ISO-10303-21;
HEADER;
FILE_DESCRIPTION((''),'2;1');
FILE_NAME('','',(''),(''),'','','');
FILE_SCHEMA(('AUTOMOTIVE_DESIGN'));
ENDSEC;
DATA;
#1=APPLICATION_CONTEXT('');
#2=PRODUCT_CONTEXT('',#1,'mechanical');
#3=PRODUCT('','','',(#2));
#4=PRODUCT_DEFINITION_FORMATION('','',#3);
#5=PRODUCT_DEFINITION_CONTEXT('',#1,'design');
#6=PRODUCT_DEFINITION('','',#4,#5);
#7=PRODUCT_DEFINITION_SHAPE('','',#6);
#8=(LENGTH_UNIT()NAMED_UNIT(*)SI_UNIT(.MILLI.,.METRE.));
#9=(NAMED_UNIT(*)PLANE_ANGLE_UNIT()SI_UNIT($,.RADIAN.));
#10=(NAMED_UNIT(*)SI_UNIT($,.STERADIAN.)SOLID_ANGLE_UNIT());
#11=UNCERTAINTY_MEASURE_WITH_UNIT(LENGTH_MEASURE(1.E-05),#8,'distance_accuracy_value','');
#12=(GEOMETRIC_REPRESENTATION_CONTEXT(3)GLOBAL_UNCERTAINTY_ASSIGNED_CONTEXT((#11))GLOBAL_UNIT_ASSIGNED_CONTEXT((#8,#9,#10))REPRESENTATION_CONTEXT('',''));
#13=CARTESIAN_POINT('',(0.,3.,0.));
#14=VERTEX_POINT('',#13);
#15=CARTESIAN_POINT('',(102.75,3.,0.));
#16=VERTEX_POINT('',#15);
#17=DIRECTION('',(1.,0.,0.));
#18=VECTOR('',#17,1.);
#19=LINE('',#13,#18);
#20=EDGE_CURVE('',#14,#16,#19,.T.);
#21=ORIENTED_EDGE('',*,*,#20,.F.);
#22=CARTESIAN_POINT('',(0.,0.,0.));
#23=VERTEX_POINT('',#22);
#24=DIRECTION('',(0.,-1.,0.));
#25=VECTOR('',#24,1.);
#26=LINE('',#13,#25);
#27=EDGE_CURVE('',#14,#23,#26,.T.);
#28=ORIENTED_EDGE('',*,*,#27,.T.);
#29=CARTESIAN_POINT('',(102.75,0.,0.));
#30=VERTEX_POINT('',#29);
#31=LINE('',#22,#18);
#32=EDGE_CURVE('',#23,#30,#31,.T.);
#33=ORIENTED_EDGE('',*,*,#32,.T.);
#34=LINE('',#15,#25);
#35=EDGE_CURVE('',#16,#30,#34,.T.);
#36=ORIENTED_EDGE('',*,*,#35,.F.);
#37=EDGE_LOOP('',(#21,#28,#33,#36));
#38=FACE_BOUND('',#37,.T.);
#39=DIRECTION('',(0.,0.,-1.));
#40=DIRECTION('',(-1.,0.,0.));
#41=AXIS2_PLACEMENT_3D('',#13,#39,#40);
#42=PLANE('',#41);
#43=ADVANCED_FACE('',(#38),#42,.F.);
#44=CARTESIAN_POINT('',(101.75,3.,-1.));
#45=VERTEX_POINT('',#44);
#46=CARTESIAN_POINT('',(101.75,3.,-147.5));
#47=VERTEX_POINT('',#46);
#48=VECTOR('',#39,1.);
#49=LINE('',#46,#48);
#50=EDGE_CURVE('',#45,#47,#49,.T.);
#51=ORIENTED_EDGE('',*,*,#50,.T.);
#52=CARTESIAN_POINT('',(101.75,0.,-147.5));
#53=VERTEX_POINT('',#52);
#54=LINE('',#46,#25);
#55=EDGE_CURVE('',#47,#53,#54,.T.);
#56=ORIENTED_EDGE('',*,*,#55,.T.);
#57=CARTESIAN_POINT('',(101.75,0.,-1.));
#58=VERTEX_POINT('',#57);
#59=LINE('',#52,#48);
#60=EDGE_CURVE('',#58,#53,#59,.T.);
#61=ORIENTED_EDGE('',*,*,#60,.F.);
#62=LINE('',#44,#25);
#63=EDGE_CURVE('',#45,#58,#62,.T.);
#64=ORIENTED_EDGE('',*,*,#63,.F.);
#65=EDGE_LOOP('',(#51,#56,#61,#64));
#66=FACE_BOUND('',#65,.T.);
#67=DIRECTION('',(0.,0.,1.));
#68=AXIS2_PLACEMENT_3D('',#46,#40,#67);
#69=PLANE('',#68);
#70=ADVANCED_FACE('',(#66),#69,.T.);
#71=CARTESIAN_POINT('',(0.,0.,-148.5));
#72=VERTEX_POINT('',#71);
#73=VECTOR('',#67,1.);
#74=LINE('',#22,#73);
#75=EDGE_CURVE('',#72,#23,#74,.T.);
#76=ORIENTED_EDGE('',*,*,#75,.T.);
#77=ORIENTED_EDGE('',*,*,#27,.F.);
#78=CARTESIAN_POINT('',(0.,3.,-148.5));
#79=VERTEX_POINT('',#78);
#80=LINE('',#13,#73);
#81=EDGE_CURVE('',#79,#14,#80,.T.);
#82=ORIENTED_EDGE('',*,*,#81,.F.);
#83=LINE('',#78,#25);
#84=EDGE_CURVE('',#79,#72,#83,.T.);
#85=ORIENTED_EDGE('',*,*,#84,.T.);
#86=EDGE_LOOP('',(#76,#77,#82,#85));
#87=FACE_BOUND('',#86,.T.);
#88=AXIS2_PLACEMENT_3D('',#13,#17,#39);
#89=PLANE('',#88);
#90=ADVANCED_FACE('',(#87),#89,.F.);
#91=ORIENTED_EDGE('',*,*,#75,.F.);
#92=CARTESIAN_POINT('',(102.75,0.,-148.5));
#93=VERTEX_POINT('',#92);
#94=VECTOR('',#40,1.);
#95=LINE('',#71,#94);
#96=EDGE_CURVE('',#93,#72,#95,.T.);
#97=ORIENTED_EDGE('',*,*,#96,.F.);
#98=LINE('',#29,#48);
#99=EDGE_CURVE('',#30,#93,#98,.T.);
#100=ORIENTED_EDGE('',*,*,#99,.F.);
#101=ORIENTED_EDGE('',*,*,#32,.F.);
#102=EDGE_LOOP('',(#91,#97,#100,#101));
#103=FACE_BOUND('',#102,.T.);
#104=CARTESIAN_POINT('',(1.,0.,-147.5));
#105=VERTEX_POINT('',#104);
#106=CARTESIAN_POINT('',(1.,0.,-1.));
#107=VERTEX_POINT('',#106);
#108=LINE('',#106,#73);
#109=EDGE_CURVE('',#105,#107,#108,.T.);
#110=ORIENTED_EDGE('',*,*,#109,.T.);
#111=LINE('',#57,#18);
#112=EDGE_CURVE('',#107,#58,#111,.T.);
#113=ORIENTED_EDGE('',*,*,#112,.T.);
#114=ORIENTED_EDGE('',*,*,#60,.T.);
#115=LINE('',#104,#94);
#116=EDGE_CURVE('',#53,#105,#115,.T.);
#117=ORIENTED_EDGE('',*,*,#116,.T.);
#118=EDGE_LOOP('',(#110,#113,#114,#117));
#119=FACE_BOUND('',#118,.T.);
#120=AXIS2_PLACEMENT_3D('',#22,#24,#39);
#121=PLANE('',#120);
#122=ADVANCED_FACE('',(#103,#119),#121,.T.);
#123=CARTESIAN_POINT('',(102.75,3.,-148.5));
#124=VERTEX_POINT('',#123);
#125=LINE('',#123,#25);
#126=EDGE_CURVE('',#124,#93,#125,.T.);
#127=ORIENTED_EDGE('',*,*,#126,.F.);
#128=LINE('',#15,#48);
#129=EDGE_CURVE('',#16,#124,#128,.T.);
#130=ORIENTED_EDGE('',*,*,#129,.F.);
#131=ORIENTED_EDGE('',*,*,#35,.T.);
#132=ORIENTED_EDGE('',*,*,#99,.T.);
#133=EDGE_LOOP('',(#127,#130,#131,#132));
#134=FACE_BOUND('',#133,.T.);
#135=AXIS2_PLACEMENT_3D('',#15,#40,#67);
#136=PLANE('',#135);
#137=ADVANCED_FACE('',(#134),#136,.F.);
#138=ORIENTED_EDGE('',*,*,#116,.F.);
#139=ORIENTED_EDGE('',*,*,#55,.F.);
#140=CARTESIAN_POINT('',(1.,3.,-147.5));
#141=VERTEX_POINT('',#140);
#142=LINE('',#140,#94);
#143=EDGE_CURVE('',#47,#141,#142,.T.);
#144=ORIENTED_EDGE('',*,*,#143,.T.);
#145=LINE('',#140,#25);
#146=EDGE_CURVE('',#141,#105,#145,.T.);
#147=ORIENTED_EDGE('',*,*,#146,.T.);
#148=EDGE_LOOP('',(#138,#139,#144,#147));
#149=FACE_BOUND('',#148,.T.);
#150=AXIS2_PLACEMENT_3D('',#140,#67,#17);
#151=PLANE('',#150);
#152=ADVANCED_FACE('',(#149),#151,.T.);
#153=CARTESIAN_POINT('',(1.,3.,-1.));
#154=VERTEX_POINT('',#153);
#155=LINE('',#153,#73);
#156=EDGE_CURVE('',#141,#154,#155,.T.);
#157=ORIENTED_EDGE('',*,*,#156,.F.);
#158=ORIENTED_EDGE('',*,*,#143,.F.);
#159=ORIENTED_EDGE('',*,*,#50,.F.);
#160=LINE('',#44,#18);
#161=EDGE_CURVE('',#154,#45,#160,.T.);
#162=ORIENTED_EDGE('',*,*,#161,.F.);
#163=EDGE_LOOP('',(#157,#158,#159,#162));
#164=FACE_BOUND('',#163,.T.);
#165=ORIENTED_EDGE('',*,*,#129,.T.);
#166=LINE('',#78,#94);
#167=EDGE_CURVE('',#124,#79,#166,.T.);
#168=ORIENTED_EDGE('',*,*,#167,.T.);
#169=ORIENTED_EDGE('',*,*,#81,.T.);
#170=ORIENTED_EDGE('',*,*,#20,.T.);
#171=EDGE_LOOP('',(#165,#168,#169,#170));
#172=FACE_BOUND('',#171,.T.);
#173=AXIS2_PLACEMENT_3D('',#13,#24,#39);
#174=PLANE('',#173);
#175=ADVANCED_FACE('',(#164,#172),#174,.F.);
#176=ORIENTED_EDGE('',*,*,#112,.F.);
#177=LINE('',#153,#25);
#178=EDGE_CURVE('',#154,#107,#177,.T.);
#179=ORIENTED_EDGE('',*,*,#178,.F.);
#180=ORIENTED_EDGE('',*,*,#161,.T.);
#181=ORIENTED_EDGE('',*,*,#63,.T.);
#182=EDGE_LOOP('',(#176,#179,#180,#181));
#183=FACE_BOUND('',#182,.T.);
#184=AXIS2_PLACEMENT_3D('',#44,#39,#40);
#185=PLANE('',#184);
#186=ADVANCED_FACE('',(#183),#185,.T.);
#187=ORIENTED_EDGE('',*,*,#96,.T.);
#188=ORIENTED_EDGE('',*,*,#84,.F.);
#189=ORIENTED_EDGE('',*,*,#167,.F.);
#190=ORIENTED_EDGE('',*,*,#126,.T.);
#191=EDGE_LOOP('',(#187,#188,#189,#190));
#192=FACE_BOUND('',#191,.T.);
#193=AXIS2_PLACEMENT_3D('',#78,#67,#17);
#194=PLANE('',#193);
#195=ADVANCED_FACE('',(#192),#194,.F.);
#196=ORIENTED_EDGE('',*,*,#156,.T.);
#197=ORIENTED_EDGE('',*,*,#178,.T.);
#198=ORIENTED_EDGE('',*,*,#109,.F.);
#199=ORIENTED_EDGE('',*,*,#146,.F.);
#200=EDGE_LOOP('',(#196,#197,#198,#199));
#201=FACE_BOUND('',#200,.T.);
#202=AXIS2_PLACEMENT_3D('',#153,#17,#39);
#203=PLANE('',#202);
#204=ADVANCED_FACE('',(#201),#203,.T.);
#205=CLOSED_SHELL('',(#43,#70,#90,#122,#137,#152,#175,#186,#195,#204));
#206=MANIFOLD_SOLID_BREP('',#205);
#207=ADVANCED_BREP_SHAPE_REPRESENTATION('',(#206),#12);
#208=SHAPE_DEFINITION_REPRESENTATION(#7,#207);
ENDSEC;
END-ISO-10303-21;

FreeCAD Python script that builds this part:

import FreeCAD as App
import Part
import Sketcher
from FreeCAD import Vector
Q = App.Units.Quantity


def add_polygon(sketch, points):
    """Adds a closed chain of lines whose ends are joined by coincident constraints."""
    first, n = sketch.GeometryCount, len(points)
    for a, b in zip(points, points[1:] + points[:1]):
        sketch.addGeometry(Part.LineSegment(App.Vector(*a, 0), App.Vector(*b, 0)), False)
    for i in range(n):
        sketch.addConstraint(Sketcher.Constraint("Coincident", first + i, 2, first + (i + 1) % n, 1))

doc = App.newDocument("Part")
body = doc.addObject("PartDesign::Body", "Body")

# Sketch on XZ plane
sketch1 = body.newObject("Sketcher::SketchObject", "Sketch")
sketch1.AttachmentSupport = (doc.getObject("XZ_Plane"), [""])
sketch1.MapMode = "FlatFace"
add_polygon(sketch1, [(0, -148), (0, 0), (103, 0), (103, -148)])  # lines 0-3
add_polygon(sketch1, [(102, -1), (1, -1), (1, -148), (102, -148)])  # lines 4-7
sketch1.addConstraint([
    Sketcher.Constraint("Vertical", 0),
    Sketcher.Constraint("Horizontal", 1),
    Sketcher.Constraint("Vertical", 2),
    Sketcher.Constraint("Horizontal", 3),
    Sketcher.Constraint("Horizontal", 4),
    Sketcher.Constraint("Vertical", 5),
    Sketcher.Constraint("Horizontal", 6),
    Sketcher.Constraint("Vertical", 7),
    Sketcher.Constraint("Coincident", 0, 2, -1, 1),
    Sketcher.Constraint("DistanceY", 0, 1, 0, 2, Q("148.5 mm")),
    Sketcher.Constraint("DistanceY", 5, 2, 5, 1, Q("146.5 mm")),
    Sketcher.Constraint("DistanceX", -1, 1, 4, 2, Q("1 mm")),
    Sketcher.Constraint("DistanceY", 4, 2, -1, 1, Q("1 mm")),
    Sketcher.Constraint("DistanceX", 6, 2, 2, 2, Q("1 mm")),
    Sketcher.Constraint("DistanceX", 1, 1, 1, 2, Q("102.75 mm")),
])
pad1 = body.newObject("PartDesign::Pad", "Pad")
pad1.Profile = sketch1
pad1.Length = 3
pad1.Reversed = True

doc.recompute()
